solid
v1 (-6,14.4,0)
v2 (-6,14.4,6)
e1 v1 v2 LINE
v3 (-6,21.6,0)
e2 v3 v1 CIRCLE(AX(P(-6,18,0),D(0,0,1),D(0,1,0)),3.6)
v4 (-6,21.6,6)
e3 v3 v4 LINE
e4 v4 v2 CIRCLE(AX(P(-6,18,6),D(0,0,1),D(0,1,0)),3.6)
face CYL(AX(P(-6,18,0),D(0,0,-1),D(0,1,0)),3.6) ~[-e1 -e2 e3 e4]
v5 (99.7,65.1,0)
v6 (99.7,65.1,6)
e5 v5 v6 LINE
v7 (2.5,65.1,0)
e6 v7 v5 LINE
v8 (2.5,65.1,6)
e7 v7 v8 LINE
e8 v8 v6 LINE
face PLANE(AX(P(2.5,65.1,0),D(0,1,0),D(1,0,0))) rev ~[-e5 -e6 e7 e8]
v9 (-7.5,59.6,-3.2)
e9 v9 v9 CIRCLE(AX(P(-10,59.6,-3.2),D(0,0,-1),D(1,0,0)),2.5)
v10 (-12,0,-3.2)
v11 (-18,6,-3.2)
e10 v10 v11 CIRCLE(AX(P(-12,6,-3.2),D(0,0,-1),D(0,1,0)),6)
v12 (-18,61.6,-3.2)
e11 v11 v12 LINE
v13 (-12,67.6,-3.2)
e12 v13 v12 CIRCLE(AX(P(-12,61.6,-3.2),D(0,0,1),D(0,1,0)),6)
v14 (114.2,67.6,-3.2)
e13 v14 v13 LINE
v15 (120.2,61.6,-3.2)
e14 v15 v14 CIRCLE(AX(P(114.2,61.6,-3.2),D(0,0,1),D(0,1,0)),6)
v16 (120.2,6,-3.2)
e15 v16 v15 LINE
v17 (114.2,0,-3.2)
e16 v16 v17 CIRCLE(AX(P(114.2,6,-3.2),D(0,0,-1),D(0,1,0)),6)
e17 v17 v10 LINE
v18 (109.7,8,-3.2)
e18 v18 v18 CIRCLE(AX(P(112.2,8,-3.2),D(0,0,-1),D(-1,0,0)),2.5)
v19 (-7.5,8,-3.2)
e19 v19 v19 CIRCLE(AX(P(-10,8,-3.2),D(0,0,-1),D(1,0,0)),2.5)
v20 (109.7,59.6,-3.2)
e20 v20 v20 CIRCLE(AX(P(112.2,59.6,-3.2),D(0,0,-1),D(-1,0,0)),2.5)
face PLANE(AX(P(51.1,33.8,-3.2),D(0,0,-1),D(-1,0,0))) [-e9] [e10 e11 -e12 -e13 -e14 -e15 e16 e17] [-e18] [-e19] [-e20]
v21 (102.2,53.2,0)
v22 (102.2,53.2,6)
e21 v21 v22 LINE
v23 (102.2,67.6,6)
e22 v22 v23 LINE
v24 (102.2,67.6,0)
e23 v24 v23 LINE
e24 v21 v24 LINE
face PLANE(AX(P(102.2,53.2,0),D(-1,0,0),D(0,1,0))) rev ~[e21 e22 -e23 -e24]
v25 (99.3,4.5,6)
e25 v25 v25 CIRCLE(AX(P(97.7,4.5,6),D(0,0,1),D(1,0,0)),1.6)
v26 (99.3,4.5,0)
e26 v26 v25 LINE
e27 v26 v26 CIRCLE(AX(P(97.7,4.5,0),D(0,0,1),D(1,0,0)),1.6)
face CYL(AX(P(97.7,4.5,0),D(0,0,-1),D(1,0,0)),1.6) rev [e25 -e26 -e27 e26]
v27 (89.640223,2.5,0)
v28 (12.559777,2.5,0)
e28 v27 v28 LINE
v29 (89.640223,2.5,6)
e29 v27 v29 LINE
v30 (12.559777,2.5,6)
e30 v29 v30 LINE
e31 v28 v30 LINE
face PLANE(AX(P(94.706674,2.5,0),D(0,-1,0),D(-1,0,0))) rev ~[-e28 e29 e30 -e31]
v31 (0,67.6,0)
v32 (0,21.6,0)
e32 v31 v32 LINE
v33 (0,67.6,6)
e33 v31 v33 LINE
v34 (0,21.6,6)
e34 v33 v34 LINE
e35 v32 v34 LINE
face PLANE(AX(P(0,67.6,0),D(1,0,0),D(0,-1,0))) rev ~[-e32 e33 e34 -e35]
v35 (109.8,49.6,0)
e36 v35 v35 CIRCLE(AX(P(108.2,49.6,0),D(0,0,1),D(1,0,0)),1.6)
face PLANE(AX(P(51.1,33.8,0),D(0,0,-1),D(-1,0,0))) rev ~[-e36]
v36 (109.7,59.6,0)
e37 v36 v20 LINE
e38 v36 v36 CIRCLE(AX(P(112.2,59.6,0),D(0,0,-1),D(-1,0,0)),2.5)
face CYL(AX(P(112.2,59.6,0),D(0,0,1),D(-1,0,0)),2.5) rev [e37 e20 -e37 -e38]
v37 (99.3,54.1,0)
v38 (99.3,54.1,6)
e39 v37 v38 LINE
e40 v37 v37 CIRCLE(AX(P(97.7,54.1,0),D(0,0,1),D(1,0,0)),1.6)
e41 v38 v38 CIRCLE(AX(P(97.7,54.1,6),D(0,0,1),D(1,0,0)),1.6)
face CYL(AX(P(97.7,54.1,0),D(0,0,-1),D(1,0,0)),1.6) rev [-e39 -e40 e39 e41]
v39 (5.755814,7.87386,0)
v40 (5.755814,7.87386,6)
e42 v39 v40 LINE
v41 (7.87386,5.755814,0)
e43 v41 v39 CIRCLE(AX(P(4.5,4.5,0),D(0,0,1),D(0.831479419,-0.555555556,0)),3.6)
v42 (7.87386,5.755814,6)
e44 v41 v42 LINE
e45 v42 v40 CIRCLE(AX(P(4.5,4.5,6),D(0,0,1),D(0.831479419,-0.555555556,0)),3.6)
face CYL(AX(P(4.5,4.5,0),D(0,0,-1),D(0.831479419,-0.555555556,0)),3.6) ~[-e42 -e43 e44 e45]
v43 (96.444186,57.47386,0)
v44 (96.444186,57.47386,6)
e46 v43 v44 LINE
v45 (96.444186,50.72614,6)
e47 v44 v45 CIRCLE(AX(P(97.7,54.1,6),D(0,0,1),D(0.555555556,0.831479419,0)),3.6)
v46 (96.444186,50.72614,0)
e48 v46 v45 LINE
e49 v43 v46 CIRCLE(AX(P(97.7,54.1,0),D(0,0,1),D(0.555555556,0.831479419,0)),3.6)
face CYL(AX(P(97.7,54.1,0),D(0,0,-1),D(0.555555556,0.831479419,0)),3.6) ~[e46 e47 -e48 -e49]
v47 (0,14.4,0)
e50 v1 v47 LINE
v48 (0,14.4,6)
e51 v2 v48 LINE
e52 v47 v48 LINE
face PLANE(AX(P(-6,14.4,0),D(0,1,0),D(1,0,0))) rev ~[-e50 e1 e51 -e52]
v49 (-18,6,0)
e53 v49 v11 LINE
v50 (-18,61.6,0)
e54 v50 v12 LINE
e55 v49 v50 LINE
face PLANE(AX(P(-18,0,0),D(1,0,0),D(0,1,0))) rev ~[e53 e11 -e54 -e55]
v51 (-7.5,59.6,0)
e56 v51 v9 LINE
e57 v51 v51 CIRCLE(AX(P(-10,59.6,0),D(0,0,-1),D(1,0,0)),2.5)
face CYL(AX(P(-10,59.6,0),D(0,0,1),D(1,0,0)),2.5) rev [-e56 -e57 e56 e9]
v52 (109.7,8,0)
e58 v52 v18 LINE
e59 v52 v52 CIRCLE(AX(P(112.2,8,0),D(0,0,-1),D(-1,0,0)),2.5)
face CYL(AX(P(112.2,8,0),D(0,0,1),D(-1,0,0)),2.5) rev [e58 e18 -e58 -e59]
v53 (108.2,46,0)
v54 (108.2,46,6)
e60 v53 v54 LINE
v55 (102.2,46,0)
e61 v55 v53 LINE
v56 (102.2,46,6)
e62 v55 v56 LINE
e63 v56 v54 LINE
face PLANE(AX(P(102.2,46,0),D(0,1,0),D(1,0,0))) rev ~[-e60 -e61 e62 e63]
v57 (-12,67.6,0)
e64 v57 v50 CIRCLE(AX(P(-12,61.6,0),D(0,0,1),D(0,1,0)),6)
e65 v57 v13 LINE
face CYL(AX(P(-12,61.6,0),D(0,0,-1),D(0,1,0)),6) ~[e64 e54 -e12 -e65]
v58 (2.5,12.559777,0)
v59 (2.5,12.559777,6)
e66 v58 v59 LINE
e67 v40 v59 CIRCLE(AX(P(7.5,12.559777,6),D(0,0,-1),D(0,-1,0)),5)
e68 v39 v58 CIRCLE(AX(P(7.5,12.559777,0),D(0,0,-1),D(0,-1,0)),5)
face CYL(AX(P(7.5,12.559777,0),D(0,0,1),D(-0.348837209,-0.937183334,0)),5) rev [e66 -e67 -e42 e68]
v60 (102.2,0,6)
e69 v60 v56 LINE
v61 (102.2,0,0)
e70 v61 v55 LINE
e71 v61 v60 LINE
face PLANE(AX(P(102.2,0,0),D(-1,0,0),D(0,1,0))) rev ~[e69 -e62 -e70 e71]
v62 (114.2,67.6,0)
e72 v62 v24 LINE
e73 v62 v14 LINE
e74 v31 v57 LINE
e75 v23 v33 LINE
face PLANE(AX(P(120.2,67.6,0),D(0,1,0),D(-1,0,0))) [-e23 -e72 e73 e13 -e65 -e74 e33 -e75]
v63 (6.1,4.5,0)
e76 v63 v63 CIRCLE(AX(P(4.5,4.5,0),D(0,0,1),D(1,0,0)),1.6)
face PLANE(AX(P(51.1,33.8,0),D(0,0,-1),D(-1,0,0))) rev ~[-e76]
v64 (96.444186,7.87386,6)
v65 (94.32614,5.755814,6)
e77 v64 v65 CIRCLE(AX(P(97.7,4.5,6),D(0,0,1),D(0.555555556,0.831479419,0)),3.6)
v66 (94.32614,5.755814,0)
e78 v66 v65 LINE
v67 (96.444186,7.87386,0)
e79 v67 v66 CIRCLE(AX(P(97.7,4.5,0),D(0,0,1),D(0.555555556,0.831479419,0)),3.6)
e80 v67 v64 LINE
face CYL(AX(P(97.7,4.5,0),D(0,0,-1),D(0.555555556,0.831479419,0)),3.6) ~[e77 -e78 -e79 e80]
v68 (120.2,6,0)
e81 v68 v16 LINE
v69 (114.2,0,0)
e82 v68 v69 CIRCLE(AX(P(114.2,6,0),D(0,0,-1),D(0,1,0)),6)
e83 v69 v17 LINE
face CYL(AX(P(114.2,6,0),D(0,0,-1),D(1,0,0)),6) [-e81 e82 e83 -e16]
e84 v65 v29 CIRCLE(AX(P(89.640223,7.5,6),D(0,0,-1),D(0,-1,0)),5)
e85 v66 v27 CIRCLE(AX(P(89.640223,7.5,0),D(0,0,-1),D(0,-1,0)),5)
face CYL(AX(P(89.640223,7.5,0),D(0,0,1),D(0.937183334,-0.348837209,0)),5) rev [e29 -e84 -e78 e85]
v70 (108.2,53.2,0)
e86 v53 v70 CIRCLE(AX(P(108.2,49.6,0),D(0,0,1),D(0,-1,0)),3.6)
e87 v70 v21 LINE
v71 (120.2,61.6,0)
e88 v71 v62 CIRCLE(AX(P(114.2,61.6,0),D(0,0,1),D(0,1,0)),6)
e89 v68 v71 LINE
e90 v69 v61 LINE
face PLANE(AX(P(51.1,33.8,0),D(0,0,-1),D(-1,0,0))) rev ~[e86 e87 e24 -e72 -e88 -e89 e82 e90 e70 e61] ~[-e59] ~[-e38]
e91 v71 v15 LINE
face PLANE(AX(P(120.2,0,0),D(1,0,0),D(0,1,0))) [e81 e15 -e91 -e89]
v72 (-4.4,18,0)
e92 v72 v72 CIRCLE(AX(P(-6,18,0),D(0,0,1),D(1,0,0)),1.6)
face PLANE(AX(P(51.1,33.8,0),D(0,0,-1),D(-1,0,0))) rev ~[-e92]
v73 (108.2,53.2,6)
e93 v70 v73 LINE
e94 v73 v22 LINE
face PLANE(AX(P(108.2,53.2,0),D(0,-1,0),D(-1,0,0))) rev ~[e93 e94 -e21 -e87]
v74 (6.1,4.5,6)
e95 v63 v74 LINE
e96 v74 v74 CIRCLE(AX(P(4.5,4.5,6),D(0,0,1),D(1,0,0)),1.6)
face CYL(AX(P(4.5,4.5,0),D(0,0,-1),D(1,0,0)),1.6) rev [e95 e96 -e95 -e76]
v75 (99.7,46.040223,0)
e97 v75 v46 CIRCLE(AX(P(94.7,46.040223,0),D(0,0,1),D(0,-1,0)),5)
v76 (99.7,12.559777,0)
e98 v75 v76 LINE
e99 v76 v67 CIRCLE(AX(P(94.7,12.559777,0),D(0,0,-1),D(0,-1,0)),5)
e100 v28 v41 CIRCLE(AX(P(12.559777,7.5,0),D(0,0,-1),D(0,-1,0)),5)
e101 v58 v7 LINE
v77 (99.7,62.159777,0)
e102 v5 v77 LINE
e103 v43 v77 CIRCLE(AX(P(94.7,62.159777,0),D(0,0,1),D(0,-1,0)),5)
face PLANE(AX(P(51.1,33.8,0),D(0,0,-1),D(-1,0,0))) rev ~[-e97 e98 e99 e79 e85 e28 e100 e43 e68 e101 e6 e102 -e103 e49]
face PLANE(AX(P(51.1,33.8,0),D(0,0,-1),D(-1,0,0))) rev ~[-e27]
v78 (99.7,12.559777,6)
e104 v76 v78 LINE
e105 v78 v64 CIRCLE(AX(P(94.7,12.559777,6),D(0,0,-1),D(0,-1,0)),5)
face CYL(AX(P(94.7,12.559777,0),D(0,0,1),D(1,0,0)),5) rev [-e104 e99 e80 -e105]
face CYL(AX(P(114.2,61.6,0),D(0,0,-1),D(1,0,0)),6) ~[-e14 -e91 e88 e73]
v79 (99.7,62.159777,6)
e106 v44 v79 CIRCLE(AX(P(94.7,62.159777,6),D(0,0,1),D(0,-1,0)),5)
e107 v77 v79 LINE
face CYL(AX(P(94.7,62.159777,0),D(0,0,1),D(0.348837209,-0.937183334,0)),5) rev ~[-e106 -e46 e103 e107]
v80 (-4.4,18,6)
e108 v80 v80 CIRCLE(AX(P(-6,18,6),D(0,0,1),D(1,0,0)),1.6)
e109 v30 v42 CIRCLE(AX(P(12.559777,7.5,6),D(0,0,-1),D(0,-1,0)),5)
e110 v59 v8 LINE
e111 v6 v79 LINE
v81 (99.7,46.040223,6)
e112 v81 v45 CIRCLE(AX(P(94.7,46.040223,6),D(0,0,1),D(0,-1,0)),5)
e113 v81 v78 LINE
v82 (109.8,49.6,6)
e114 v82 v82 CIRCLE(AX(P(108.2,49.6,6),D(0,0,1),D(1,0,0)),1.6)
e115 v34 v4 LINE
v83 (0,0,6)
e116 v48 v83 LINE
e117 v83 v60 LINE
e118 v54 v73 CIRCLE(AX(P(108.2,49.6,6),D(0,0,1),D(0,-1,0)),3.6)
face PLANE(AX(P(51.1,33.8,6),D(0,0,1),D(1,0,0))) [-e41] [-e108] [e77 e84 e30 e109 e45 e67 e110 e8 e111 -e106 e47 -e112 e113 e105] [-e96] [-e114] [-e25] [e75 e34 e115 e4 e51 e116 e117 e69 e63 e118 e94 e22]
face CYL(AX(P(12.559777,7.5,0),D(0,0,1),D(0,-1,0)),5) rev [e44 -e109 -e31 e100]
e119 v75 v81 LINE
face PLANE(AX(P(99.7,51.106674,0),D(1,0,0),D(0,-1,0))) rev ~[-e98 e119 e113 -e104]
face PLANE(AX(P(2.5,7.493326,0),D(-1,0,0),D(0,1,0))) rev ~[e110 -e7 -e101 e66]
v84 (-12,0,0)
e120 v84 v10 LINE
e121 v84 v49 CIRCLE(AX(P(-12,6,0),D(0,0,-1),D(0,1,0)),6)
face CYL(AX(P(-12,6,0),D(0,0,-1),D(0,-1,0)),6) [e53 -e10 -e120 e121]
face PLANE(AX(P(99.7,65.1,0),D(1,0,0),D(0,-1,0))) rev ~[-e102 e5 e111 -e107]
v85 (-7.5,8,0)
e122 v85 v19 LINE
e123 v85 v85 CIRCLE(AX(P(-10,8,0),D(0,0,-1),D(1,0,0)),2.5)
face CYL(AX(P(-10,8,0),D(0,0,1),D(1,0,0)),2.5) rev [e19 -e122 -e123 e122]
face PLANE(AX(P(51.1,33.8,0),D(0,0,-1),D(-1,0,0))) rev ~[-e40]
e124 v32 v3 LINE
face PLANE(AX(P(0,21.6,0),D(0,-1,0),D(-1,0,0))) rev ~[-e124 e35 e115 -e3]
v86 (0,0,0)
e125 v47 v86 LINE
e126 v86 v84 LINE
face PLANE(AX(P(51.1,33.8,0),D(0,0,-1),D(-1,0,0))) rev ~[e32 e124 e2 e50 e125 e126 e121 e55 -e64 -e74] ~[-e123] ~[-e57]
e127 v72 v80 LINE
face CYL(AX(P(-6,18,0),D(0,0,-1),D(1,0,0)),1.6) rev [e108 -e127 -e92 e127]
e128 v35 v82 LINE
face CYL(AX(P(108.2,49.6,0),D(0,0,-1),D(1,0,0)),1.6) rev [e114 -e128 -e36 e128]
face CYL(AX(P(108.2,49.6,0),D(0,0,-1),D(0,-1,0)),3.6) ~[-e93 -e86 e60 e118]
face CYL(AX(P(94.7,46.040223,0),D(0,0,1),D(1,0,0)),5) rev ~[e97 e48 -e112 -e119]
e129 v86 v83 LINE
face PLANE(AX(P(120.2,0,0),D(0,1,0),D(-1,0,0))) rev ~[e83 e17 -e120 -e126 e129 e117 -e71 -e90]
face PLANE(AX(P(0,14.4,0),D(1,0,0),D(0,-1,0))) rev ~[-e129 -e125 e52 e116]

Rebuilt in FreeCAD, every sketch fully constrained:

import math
import FreeCAD as App
import Part
import Sketcher

V = App.Vector


def edges_at(feature, points):
    """Names of the edges that pass closest to the given points."""
    edges = feature.Shape.Edges
    near = lambda p: min(range(len(edges)), key=lambda i: edges[i].distToShape(Part.Vertex(*p))[0])
    return sorted({f"Edge{near(p) + 1}" for p in points})

doc = App.newDocument("Part")
body = doc.addObject("PartDesign::Body", "Body")

# Sketch on XY plane
sketch1 = doc.addObject("Sketcher::SketchObject", "Sketch")
body.addObject(sketch1)
sketch1.AttachmentSupport = (doc.XY_Plane, [""])
sketch1.MapMode = "FlatFace"
sketch1.addGeometry(Part.LineSegment(V(0, 21.6, 0), V(-6, 21.6, 0)), False)
sketch1.addGeometry(Part.ArcOfCircle(Part.Circle(V(-6, 18, 0), V(0, 0, 1), 3.6), math.radians(90), math.radians(270)), False)
sketch1.addGeometry(Part.LineSegment(V(-6, 14.4, 0), V(0, 14.4, 0)), False)
sketch1.addGeometry(Part.LineSegment(V(0, 14.4, 0), V(0, 0, 0)), False)
sketch1.addGeometry(Part.LineSegment(V(0, 0, 0), V(102.2, 0, 0)), False)
sketch1.addGeometry(Part.LineSegment(V(102.2, 0, 0), V(102.2, 46, 0)), False)
sketch1.addGeometry(Part.LineSegment(V(102.2, 46, 0), V(108.2, 46, 0)), False)
sketch1.addGeometry(Part.ArcOfCircle(Part.Circle(V(108.2, 49.6, 0), V(0, 0, 1), 3.6), math.radians(-90), math.radians(90)), False)
sketch1.addGeometry(Part.LineSegment(V(108.2, 53.2, 0), V(102.2, 53.2, 0)), False)
sketch1.addGeometry(Part.LineSegment(V(102.2, 53.2, 0), V(102.2, 67.6, 0)), False)
sketch1.addGeometry(Part.LineSegment(V(102.2, 67.6, 0), V(0, 67.6, 0)), False)
sketch1.addGeometry(Part.LineSegment(V(0, 67.6, 0), V(0, 21.6, 0)), False)
sketch1.addGeometry(Part.Circle(V(4.5, 4.5, 0), V(0, 0, 1), 1.6), False)
sketch1.addGeometry(Part.Circle(V(-6, 18, 0), V(0, 0, 1), 1.6), False)
sketch1.addGeometry(Part.Circle(V(97.7, 4.5, 0), V(0, 0, 1), 1.6), False)
sketch1.addGeometry(Part.ArcOfCircle(Part.Circle(V(97.7, 4.5, 0), V(0, 0, 1), 3.6), math.radians(56), math.radians(214)), False)
sketch1.addGeometry(Part.LineSegment(V(94.7, 2.5, 0), V(7.5, 2.5, 0)), False)
sketch1.addGeometry(Part.ArcOfCircle(Part.Circle(V(4.5, 4.5, 0), V(0, 0, 1), 3.6), math.radians(-34), math.radians(124)), False)
sketch1.addGeometry(Part.LineSegment(V(2.5, 7.5, 0), V(2.5, 65.1, 0)), False)
sketch1.addGeometry(Part.LineSegment(V(2.5, 65.1, 0), V(99.7, 65.1, 0)), False)
sketch1.addGeometry(Part.LineSegment(V(99.7, 65.1, 0), V(99.7, 57.1, 0)), False)
sketch1.addGeometry(Part.ArcOfCircle(Part.Circle(V(97.7, 54.1, 0), V(0, 0, 1), 3.6), math.radians(56), math.radians(304)), False)
sketch1.addGeometry(Part.LineSegment(V(99.7, 51.1, 0), V(99.7, 7.5, 0)), False)
sketch1.addGeometry(Part.Circle(V(108.2, 49.6, 0), V(0, 0, 1), 1.6), False)
sketch1.addGeometry(Part.Circle(V(97.7, 54.1, 0), V(0, 0, 1), 1.6), False)
sketch1.addConstraint(Sketcher.Constraint("Tangent", 0, 2, 1, 1))
sketch1.addConstraint(Sketcher.Constraint("Tangent", 1, 2, 2, 1))
sketch1.addConstraint(Sketcher.Constraint("Coincident", 2, 2, 3, 1))
sketch1.addConstraint(Sketcher.Constraint("Coincident", 3, 2, 4, 1))
sketch1.addConstraint(Sketcher.Constraint("Coincident", 4, 2, 5, 1))
sketch1.addConstraint(Sketcher.Constraint("Coincident", 5, 2, 6, 1))
sketch1.addConstraint(Sketcher.Constraint("Tangent", 6, 2, 7, 1))
sketch1.addConstraint(Sketcher.Constraint("Tangent", 7, 2, 8, 1))
sketch1.addConstraint(Sketcher.Constraint("Coincident", 8, 2, 9, 1))
sketch1.addConstraint(Sketcher.Constraint("Coincident", 9, 2, 10, 1))
sketch1.addConstraint(Sketcher.Constraint("Coincident", 10, 2, 11, 1))
sketch1.addConstraint(Sketcher.Constraint("Coincident", 11, 2, 0, 1))
sketch1.addConstraint(Sketcher.Constraint("Coincident", 15, 2, 16, 1))
sketch1.addConstraint(Sketcher.Constraint("Coincident", 16, 2, 17, 1))
sketch1.addConstraint(Sketcher.Constraint("Coincident", 17, 2, 18, 1))
sketch1.addConstraint(Sketcher.Constraint("Coincident", 18, 2, 19, 1))
sketch1.addConstraint(Sketcher.Constraint("Coincident", 19, 2, 20, 1))
sketch1.addConstraint(Sketcher.Constraint("Coincident", 20, 2, 21, 1))
sketch1.addConstraint(Sketcher.Constraint("Coincident", 21, 2, 22, 1))
sketch1.addConstraint(Sketcher.Constraint("Coincident", 22, 2, 15, 1))
sketch1.addConstraint(Sketcher.Constraint("Horizontal", 0))
sketch1.addConstraint(Sketcher.Constraint("Horizontal", 2))
sketch1.addConstraint(Sketcher.Constraint("Vertical", 3))
sketch1.addConstraint(Sketcher.Constraint("Horizontal", 4))
sketch1.addConstraint(Sketcher.Constraint("Vertical", 5))
sketch1.addConstraint(Sketcher.Constraint("Horizontal", 6))
sketch1.addConstraint(Sketcher.Constraint("Horizontal", 8))
sketch1.addConstraint(Sketcher.Constraint("Vertical", 9))
sketch1.addConstraint(Sketcher.Constraint("Horizontal", 10))
sketch1.addConstraint(Sketcher.Constraint("Vertical", 11))
sketch1.addConstraint(Sketcher.Constraint("Horizontal", 16))
sketch1.addConstraint(Sketcher.Constraint("Vertical", 18))
sketch1.addConstraint(Sketcher.Constraint("Horizontal", 19))
sketch1.addConstraint(Sketcher.Constraint("Vertical", 20))
sketch1.addConstraint(Sketcher.Constraint("Vertical", 22))
sketch1.addConstraint(Sketcher.Constraint("Coincident", 3, 2, -1, 1))
sketch1.addConstraint(Sketcher.Constraint("Coincident", 13, 3, 1, 3))
sketch1.addConstraint(Sketcher.Constraint("Coincident", 15, 3, 14, 3))
sketch1.addConstraint(Sketcher.Constraint("Coincident", 17, 3, 12, 3))
sketch1.addConstraint(Sketcher.Constraint("Coincident", 23, 3, 7, 3))
sketch1.addConstraint(Sketcher.Constraint("Coincident", 24, 3, 21, 3))
sketch1.addConstraint(Sketcher.Constraint("Equal", 1, 7))
sketch1.addConstraint(Sketcher.Constraint("Equal", 12, 13))
sketch1.addConstraint(Sketcher.Constraint("Equal", 13, 14))
sketch1.addConstraint(Sketcher.Constraint("Equal", 7, 15))
sketch1.addConstraint(Sketcher.Constraint("Equal", 15, 17))
sketch1.addConstraint(Sketcher.Constraint("Equal", 17, 21))
sketch1.addConstraint(Sketcher.Constraint("Equal", 14, 23))
sketch1.addConstraint(Sketcher.Constraint("Equal", 23, 24))
sketch1.addConstraint(Sketcher.Constraint("PointOnObject", 10, 2, -2))
sketch1.addConstraint(Sketcher.Constraint("Horizontal", 12, 3, 14, 3))
sketch1.addConstraint(Sketcher.Constraint("Horizontal", 17, 2, 22, 2))
sketch1.addConstraint(Sketcher.Constraint("Vertical", 15, 3, 21, 3))
sketch1.addConstraint(Sketcher.Constraint("Vertical", 5, 2, 8, 2))
sketch1.addConstraint(Sketcher.Constraint("Vertical", 20, 2, 21, 2))
sketch1.addConstraint(Sketcher.Constraint("Equal", 2, 6))
sketch1.addConstraint(Sketcher.Constraint("Equal", 3, 9))
sketch1.addConstraint(Sketcher.Constraint("Diameter", 12, 3.2))
sketch1.addConstraint(Sketcher.Constraint("Radius", 1, 3.6))
sketch1.addConstraint(Sketcher.Constraint("DistanceX", 0, 2, 0, 1, 6.0))
sketch1.addConstraint(Sketcher.Constraint("DistanceY", 5, 1, 5, 2, 46.0))
sketch1.addConstraint(Sketcher.Constraint("DistanceX", 4, 1, 4, 2, 102.2))
sketch1.addConstraint(Sketcher.Constraint("DistanceX", 19, 1, 19, 2, 97.2))
sketch1.addConstraint(Sketcher.Constraint("DistanceY", 3, 2, 3, 1, 14.4))
sketch1.addConstraint(Sketcher.Constraint("DistanceY", 15, 2, 14, 3, 2.0))
sketch1.addConstraint(Sketcher.Constraint("DistanceX", 17, 2, 12, 3, 2.0))
sketch1.addConstraint(Sketcher.Constraint("DistanceY", 21, 3, 19, 2, 11.0))
sketch1.addConstraint(Sketcher.Constraint("DistanceX", -1, 1, 12, 3, 4.5))
sketch1.addConstraint(Sketcher.Constraint("DistanceY", -1, 1, 12, 3, 4.5))
sketch1.addConstraint(Sketcher.Constraint("DistanceY", -1, 1, 21, 3, 54.1))
pad1 = doc.addObject("PartDesign::Pad", "Pad")
body.addObject(pad1)
pad1.Profile = sketch1
pad1.Length = 6

# Sketch on XY plane
sketch2 = doc.addObject("Sketcher::SketchObject", "Sketch001")
body.addObject(sketch2)
sketch2.AttachmentSupport = (doc.XY_Plane, [""])
sketch2.MapMode = "FlatFace"
sketch2.addGeometry(Part.LineSegment(V(120.2, 67.6, 0), V(120.2, 0, 0)), False)
sketch2.addGeometry(Part.LineSegment(V(120.2, 0, 0), V(-18, 0, 0)), False)
sketch2.addGeometry(Part.LineSegment(V(-18, 0, 0), V(-18, 67.6, 0)), False)
sketch2.addGeometry(Part.LineSegment(V(-18, 67.6, 0), V(120.2, 67.6, 0)), False)
sketch2.addGeometry(Part.Circle(V(112.2, 8, 0), V(0, 0, 1), 2.5), False)
sketch2.addGeometry(Part.Circle(V(-10, 8, 0), V(0, 0, 1), 2.5), False)
sketch2.addGeometry(Part.Circle(V(112.2, 59.6, 0), V(0, 0, 1), 2.5), False)
sketch2.addGeometry(Part.Circle(V(-10, 59.6, 0), V(0, 0, 1), 2.5), False)
sketch2.addConstraint(Sketcher.Constraint("Coincident", 0, 2, 1, 1))
sketch2.addConstraint(Sketcher.Constraint("Coincident", 1, 2, 2, 1))
sketch2.addConstraint(Sketcher.Constraint("Coincident", 2, 2, 3, 1))
sketch2.addConstraint(Sketcher.Constraint("Coincident", 3, 2, 0, 1))
sketch2.addConstraint(Sketcher.Constraint("Vertical", 0))
sketch2.addConstraint(Sketcher.Constraint("Horizontal", 1))
sketch2.addConstraint(Sketcher.Constraint("Vertical", 2))
sketch2.addConstraint(Sketcher.Constraint("Horizontal", 3))
sketch2.addConstraint(Sketcher.Constraint("Equal", 4, 5))
sketch2.addConstraint(Sketcher.Constraint("Equal", 5, 6))
sketch2.addConstraint(Sketcher.Constraint("Equal", 6, 7))
sketch2.addConstraint(Sketcher.Constraint("PointOnObject", 0, 2, -1))
sketch2.addConstraint(Sketcher.Constraint("Horizontal", 4, 3, 5, 3))
sketch2.addConstraint(Sketcher.Constraint("Horizontal", 6, 3, 7, 3))
sketch2.addConstraint(Sketcher.Constraint("Vertical", 4, 3, 6, 3))
sketch2.addConstraint(Sketcher.Constraint("Vertical", 5, 3, 7, 3))
sketch2.addConstraint(Sketcher.Constraint("Diameter", 4, 5.0))
sketch2.addConstraint(Sketcher.Constraint("DistanceX", 1, 2, 1, 1, 138.2))
sketch2.addConstraint(Sketcher.Constraint("DistanceY", 0, 2, 0, 1, 67.6))
sketch2.addConstraint(Sketcher.Constraint("DistanceY", -1, 1, 4, 3, 8.0))
sketch2.addConstraint(Sketcher.Constraint("DistanceX", 5, 3, -1, 1, 10.0))
sketch2.addConstraint(Sketcher.Constraint("DistanceX", 1, 2, -1, 1, 18.0))
sketch2.addConstraint(Sketcher.Constraint("DistanceX", 4, 3, 0, 2, 8.0))
sketch2.addConstraint(Sketcher.Constraint("DistanceY", 7, 3, 2, 2, 8.0))
pad2 = doc.addObject("PartDesign::Pad", "Pad001")
body.addObject(pad2)
pad2.Profile = sketch2
pad2.Length = 3.2
pad2.Reversed = True
doc.recompute()

fillet = doc.addObject("PartDesign::Fillet", "Fillet")
body.addObject(fillet)
fillet.Base = (pad2, edges_at(pad2, [
    (120.2, 67.6, -1.6),
    (120.2, 0, -1.6),
    (-18, 0, -1.6),
    (-18, 67.6, -1.6),
]))
fillet.Radius = 6
doc.recompute()

fillet2 = doc.addObject("PartDesign::Fillet", "Fillet001")
body.addObject(fillet2)
fillet2.Base = (fillet, edges_at(fillet, [(99.7, 51.107, 3), (99.7, 57.093, 3)]))
fillet2.Radius = 5
doc.recompute()

fillet3 = doc.addObject("PartDesign::Fillet", "Fillet002")
body.addObject(fillet3)
fillet3.Base = (fillet2, edges_at(fillet2, [
    (7.493, 2.5, 3),
    (94.707, 2.5, 3),
    (99.7, 7.493, 3),
    (2.5, 7.493, 3),
]))
fillet3.Radius = 5

doc.recompute()
